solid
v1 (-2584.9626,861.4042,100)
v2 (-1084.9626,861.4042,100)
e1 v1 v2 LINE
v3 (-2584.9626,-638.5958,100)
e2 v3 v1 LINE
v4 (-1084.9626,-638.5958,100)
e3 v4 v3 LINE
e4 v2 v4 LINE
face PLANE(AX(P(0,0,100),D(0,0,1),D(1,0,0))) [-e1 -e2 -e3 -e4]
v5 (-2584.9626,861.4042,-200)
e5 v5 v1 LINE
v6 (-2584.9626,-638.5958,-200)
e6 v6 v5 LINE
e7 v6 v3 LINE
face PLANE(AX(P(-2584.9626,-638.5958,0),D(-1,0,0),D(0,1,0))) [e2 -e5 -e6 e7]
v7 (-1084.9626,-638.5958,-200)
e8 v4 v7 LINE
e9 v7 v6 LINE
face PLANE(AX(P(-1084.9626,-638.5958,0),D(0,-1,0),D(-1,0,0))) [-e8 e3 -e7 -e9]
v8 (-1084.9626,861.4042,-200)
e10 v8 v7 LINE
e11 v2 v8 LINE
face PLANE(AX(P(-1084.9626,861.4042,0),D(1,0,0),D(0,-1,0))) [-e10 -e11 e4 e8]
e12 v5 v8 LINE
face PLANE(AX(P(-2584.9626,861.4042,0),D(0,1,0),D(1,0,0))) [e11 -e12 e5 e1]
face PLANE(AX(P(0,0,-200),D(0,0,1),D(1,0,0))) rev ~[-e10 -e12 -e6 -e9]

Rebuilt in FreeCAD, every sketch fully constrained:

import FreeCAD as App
import Part
import Sketcher
from FreeCAD import Vector
Q = App.Units.Quantity


def add_polygon(sketch, points):
    """Adds a closed chain of lines whose ends are joined by coincident constraints."""
    first, n = sketch.GeometryCount, len(points)
    for a, b in zip(points, points[1:] + points[:1]):
        sketch.addGeometry(Part.LineSegment(App.Vector(*a, 0), App.Vector(*b, 0)), False)
    for i in range(n):
        sketch.addConstraint(Sketcher.Constraint("Coincident", first + i, 2, first + (i + 1) % n, 1))

doc = App.newDocument("Part")
params = doc.addObject("Spreadsheet::Sheet", "Params")
for row, (alias, value) in enumerate([
    ("sketch1_width", "1500 mm"),
    ("pad1_length", "100 mm"),
    ("pad1_length2", "200 mm"),
], start=1):
    params.set(f"A{row}", alias)
    params.set(f"B{row}", "=" + value)
    params.setAlias(f"B{row}", alias)

body = doc.addObject("PartDesign::Body", "Body")

sketch1 = body.newObject("Sketcher::SketchObject", "Sketch")
sketch1.AttachmentSupport = (doc.getObject("XY_Plane"), [""])
sketch1.MapMode = "FlatFace"
add_polygon(sketch1, [(-1084.9626, 861.4042), (-2584.9626, 861.4042), (-2584.9626, -638.5958), (-1084.9626, -638.5958)])
sketch1.addConstraint(Sketcher.Constraint("Horizontal", 0))
sketch1.addConstraint(Sketcher.Constraint("Vertical", 1))
sketch1.addConstraint(Sketcher.Constraint("Horizontal", 2))
sketch1.addConstraint(Sketcher.Constraint("Vertical", 3))
sketch1.addConstraint(Sketcher.Constraint("Equal", 2, 1))
sketch1.addConstraint(Sketcher.Constraint("DistanceX", 0, 2, 0, 1, Q("1500 mm")))
sketch1.addConstraint(Sketcher.Constraint("DistanceX", 0, 2, -1, 1, Q("2584.9626 mm")))
sketch1.addConstraint(Sketcher.Constraint("DistanceY", -1, 1, 0, 2, Q("861.4042 mm")))
sketch1.setExpression("Constraints[9]", "Params.sketch1_width")
pad1 = body.newObject("PartDesign::Pad", "Pad")
pad1.Profile = sketch1
pad1.Type = "TwoLengths"
pad1.setExpression("Length", "Params.pad1_length")
pad1.setExpression("Length2", "Params.pad1_length2")

doc.recompute()
